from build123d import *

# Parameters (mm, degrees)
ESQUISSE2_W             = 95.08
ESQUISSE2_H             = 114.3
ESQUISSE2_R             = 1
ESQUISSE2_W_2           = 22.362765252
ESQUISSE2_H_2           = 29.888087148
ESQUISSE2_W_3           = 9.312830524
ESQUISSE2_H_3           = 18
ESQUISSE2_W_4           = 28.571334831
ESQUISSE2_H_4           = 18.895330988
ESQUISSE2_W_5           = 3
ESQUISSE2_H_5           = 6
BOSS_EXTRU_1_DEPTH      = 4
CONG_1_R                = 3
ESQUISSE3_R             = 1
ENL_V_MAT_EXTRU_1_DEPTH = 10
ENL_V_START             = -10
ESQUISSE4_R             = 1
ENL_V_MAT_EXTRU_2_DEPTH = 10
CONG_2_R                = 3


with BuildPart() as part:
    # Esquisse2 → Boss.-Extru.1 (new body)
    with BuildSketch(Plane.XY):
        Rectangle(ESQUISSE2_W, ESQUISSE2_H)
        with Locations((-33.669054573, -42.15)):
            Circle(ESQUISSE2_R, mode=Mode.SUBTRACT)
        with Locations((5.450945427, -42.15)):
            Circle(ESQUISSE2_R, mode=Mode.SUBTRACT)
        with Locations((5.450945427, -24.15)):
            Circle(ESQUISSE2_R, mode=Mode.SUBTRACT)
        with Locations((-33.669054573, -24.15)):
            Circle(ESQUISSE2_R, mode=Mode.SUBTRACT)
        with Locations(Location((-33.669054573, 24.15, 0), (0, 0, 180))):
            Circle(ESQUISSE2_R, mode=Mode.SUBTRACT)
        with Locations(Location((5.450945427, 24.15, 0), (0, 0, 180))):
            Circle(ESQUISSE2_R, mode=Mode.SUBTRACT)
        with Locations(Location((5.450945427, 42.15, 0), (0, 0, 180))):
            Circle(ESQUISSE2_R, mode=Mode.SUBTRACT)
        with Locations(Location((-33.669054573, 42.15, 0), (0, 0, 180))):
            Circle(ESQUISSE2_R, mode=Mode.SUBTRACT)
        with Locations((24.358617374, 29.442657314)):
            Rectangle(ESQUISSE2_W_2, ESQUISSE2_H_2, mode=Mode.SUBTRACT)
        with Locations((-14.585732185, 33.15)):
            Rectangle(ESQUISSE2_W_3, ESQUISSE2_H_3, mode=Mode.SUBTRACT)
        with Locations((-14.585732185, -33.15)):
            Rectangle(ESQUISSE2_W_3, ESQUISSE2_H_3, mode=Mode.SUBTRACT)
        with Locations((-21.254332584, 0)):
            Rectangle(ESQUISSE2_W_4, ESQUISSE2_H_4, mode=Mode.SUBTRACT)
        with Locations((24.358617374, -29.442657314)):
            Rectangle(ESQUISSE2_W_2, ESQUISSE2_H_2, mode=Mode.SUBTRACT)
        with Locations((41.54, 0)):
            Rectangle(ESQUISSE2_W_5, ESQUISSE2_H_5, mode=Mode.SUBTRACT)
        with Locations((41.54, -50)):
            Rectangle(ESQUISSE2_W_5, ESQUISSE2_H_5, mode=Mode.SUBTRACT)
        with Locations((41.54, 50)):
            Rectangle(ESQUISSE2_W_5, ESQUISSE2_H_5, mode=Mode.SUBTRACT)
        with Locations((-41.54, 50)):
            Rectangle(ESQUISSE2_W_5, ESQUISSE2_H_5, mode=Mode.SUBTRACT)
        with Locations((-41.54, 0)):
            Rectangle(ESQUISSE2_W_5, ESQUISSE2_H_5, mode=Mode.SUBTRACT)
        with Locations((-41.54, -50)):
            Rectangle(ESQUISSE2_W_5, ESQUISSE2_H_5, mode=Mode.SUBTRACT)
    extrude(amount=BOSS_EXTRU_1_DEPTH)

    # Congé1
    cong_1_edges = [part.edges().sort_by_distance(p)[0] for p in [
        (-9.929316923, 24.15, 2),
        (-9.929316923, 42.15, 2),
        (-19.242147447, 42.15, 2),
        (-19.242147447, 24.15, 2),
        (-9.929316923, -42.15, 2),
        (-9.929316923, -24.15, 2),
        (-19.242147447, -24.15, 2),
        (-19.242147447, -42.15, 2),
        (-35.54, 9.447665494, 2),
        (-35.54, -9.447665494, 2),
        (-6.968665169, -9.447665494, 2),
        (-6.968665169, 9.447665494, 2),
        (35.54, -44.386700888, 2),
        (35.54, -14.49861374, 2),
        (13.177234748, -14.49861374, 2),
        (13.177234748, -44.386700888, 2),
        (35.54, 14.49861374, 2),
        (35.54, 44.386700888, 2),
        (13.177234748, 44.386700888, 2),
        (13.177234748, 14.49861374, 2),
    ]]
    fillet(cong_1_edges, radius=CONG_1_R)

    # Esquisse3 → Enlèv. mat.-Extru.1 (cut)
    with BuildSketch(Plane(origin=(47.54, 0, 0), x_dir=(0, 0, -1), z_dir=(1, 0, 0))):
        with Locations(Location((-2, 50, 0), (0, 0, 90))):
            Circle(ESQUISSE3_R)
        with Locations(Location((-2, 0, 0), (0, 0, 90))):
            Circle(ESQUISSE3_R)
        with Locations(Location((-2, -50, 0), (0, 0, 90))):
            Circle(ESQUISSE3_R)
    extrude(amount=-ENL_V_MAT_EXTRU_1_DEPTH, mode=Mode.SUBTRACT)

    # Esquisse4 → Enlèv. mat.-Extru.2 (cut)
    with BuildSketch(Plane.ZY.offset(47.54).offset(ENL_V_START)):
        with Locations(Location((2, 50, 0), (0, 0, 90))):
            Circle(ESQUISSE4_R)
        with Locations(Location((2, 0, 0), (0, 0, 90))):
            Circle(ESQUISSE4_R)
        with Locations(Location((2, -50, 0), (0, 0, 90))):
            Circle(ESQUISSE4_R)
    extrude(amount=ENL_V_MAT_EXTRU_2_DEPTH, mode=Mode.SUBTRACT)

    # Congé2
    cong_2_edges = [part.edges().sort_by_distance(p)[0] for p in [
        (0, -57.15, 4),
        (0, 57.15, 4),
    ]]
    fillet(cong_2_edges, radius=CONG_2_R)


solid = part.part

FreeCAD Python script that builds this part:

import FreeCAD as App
import Part
import Sketcher
from FreeCAD import Vector
Q = App.Units.Quantity


def edges_at(feature, points):
    """Names of the edges that pass closest to the given points."""
    edges = feature.Shape.Edges
    near = lambda p: min(range(len(edges)), key=lambda i: edges[i].distToShape(Part.Vertex(*p))[0])
    return sorted({f"Edge{near(p) + 1}" for p in points})


def add_polygon(sketch, points):
    """Adds a closed chain of lines whose ends are joined by coincident constraints."""
    first, n = sketch.GeometryCount, len(points)
    for a, b in zip(points, points[1:] + points[:1]):
        sketch.addGeometry(Part.LineSegment(App.Vector(*a, 0), App.Vector(*b, 0)), False)
    for i in range(n):
        sketch.addConstraint(Sketcher.Constraint("Coincident", first + i, 2, first + (i + 1) % n, 1))

doc = App.newDocument("Part")
params = doc.addObject("Spreadsheet::Sheet", "Params")
for row, (alias, value) in enumerate([
    ("sketch1_diameter", "2 mm"),
    ("sketch1_width", "3 mm"),
    ("sketch1_height", "6 mm"),
    ("sketch1_height2", "18 mm"),
    ("sketch1_height3", "114.3 mm"),
    ("pad1_length", "4 mm"),
    ("fillet_radius", "3 mm"),
    ("sketch2_diameter", "2 mm"),
    ("pocket1_length", "10 mm"),
    ("sketch3_diameter", "2 mm"),
    ("pocket2_length", "10 mm"),
    ("fillet2_radius", "3 mm"),
], start=1):
    params.set(f"A{row}", alias)
    params.set(f"B{row}", "=" + value)
    params.setAlias(f"B{row}", alias)

body = doc.addObject("PartDesign::Body", "Body")

# Sketch on XY plane
sketch1 = body.newObject("Sketcher::SketchObject", "Sketch")
sketch1.AttachmentSupport = (doc.getObject("XY_Plane"), [""])
sketch1.MapMode = "FlatFace"
add_polygon(sketch1, [(-47.5, 57.1), (-47.5, -57.1), (47.5, -57.1), (47.5, 57.1)])  # lines 0-3
add_polygon(sketch1, [(-40, -53), (-43, -53), (-43, -47), (-40, -47)])  # lines 4-7
sketch1.addGeometry(Part.Circle(Vector(-33.7, -42.1, 0), Vector(0, 0, 1), 1), False)  # 8
add_polygon(sketch1, [(-9.9, -42.1), (-19.2, -42.1), (-19.2, -24.1), (-9.9, -24.1)])  # lines 9-12
sketch1.addGeometry(Part.Circle(Vector(-33.7, -24.1, 0), Vector(0, 0, 1), 1), False)  # 13
sketch1.addGeometry(Part.Circle(Vector(5.5, -42.1, 0), Vector(0, 0, 1), 1), False)  # 14
add_polygon(sketch1, [(43, -53), (40, -53), (40, -47), (43, -47)])  # lines 15-18
add_polygon(sketch1, [(35.5, -44.4), (13.2, -44.4), (13.2, -14.5), (35.5, -14.5)])  # lines 19-22
sketch1.addGeometry(Part.Circle(Vector(5.5, -24.1, 0), Vector(0, 0, 1), 1), False)  # 23
add_polygon(sketch1, [(-40, -3), (-43, -3), (-43, 3), (-40, 3)])  # lines 24-27
sketch1.addGeometry(Part.Circle(Vector(-33.7, 24.1, 0), Vector(0, 0, 1), 1), False)  # 28
add_polygon(sketch1, [(-7, -9.4), (-35.5, -9.4), (-35.5, 9.4), (-7, 9.4)])  # lines 29-32
sketch1.addGeometry(Part.Circle(Vector(-33.7, 42.1, 0), Vector(0, 0, 1), 1), False)  # 33
add_polygon(sketch1, [(-40, 47), (-43, 47), (-43, 53), (-40, 53)])  # lines 34-37
add_polygon(sketch1, [(-9.9, 24.1), (-19.2, 24.1), (-19.2, 42.1), (-9.9, 42.1)])  # lines 38-41
sketch1.addGeometry(Part.Circle(Vector(5.5, 24.1, 0), Vector(0, 0, 1), 1), False)  # 42
add_polygon(sketch1, [(43, -3), (40, -3), (40, 3), (43, 3)])  # lines 43-46
sketch1.addGeometry(Part.Circle(Vector(5.5, 42.1, 0), Vector(0, 0, 1), 1), False)  # 47
add_polygon(sketch1, [(35.5, 14.5), (13.2, 14.5), (13.2, 44.4), (35.5, 44.4)])  # lines 48-51
add_polygon(sketch1, [(43, 47), (40, 47), (40, 53), (43, 53)])  # lines 52-55
sketch1.addConstraint(Sketcher.Constraint("Vertical", 0))
sketch1.addConstraint(Sketcher.Constraint("Horizontal", 1))
sketch1.addConstraint(Sketcher.Constraint("Vertical", 2))
sketch1.addConstraint(Sketcher.Constraint("Horizontal", 3))
sketch1.addConstraint(Sketcher.Constraint("Horizontal", 4))
sketch1.addConstraint(Sketcher.Constraint("Vertical", 5))
sketch1.addConstraint(Sketcher.Constraint("Horizontal", 6))
sketch1.addConstraint(Sketcher.Constraint("Vertical", 7))
sketch1.addConstraint(Sketcher.Constraint("Horizontal", 9))
sketch1.addConstraint(Sketcher.Constraint("Vertical", 10))
sketch1.addConstraint(Sketcher.Constraint("Horizontal", 11))
sketch1.addConstraint(Sketcher.Constraint("Vertical", 12))
sketch1.addConstraint(Sketcher.Constraint("Horizontal", 15))
sketch1.addConstraint(Sketcher.Constraint("Vertical", 16))
sketch1.addConstraint(Sketcher.Constraint("Horizontal", 17))
sketch1.addConstraint(Sketcher.Constraint("Vertical", 18))
sketch1.addConstraint(Sketcher.Constraint("Horizontal", 19))
sketch1.addConstraint(Sketcher.Constraint("Vertical", 20))
sketch1.addConstraint(Sketcher.Constraint("Horizontal", 21))
sketch1.addConstraint(Sketcher.Constraint("Vertical", 22))
sketch1.addConstraint(Sketcher.Constraint("Horizontal", 24))
sketch1.addConstraint(Sketcher.Constraint("Vertical", 25))
sketch1.addConstraint(Sketcher.Constraint("Horizontal", 26))
sketch1.addConstraint(Sketcher.Constraint("Vertical", 27))
sketch1.addConstraint(Sketcher.Constraint("Horizontal", 29))
sketch1.addConstraint(Sketcher.Constraint("Vertical", 30))
sketch1.addConstraint(Sketcher.Constraint("Horizontal", 31))
sketch1.addConstraint(Sketcher.Constraint("Vertical", 32))
sketch1.addConstraint(Sketcher.Constraint("Horizontal", 34))
sketch1.addConstraint(Sketcher.Constraint("Vertical", 35))
sketch1.addConstraint(Sketcher.Constraint("Horizontal", 36))
sketch1.addConstraint(Sketcher.Constraint("Vertical", 37))
sketch1.addConstraint(Sketcher.Constraint("Horizontal", 38))
sketch1.addConstraint(Sketcher.Constraint("Vertical", 39))
sketch1.addConstraint(Sketcher.Constraint("Horizontal", 40))
sketch1.addConstraint(Sketcher.Constraint("Vertical", 41))
sketch1.addConstraint(Sketcher.Constraint("Horizontal", 43))
sketch1.addConstraint(Sketcher.Constraint("Vertical", 44))
sketch1.addConstraint(Sketcher.Constraint("Horizontal", 45))
sketch1.addConstraint(Sketcher.Constraint("Vertical", 46))
sketch1.addConstraint(Sketcher.Constraint("Horizontal", 48))
sketch1.addConstraint(Sketcher.Constraint("Vertical", 49))
sketch1.addConstraint(Sketcher.Constraint("Horizontal", 50))
sketch1.addConstraint(Sketcher.Constraint("Vertical", 51))
sketch1.addConstraint(Sketcher.Constraint("Horizontal", 52))
sketch1.addConstraint(Sketcher.Constraint("Vertical", 53))
sketch1.addConstraint(Sketcher.Constraint("Horizontal", 54))
sketch1.addConstraint(Sketcher.Constraint("Vertical", 55))
sketch1.addConstraint(Sketcher.Constraint("Equal", 8, 13))
sketch1.addConstraint(Sketcher.Constraint("Equal", 13, 14))
sketch1.addConstraint(Sketcher.Constraint("Equal", 14, 23))
sketch1.addConstraint(Sketcher.Constraint("Equal", 23, 28))
sketch1.addConstraint(Sketcher.Constraint("Equal", 28, 33))
sketch1.addConstraint(Sketcher.Constraint("Equal", 33, 42))
sketch1.addConstraint(Sketcher.Constraint("Equal", 42, 47))
sketch1.addConstraint(Sketcher.Constraint("Symmetric", 0, 2, 2, 2, -1, 1))
sketch1.addConstraint(Sketcher.Constraint("Symmetric", 17, 2, 34, 2, -1, 1))
sketch1.addConstraint(Sketcher.Constraint("Symmetric", 15, 2, 36, 2, -1, 1))
sketch1.addConstraint(Sketcher.Constraint("Symmetric", 26, 2, 43, 2, -1, 1))
sketch1.addConstraint(Sketcher.Constraint("Symmetric", 24, 2, 45, 2, -1, 1))
sketch1.addConstraint(Sketcher.Constraint("Symmetric", 6, 2, 52, 2, -1, 1))
sketch1.addConstraint(Sketcher.Constraint("Symmetric", 4, 2, 54, 2, -1, 1))
sketch1.addConstraint(Sketcher.Constraint("Symmetric", 7, 2, 15, 2, -2))
sketch1.addConstraint(Sketcher.Constraint("Symmetric", 5, 2, 17, 2, -2))
sketch1.addConstraint(Sketcher.Constraint("Symmetric", 13, 3, 28, 3, -1))
sketch1.addConstraint(Sketcher.Constraint("Symmetric", 8, 3, 33, 3, -1))
sketch1.addConstraint(Sketcher.Constraint("Symmetric", 23, 3, 42, 3, -1))
sketch1.addConstraint(Sketcher.Constraint("Symmetric", 14, 3, 47, 3, -1))
sketch1.addConstraint(Sketcher.Constraint("Symmetric", 10, 2, 38, 2, -1))
sketch1.addConstraint(Sketcher.Constraint("Symmetric", 12, 2, 40, 2, -1))
sketch1.addConstraint(Sketcher.Constraint("Symmetric", 20, 2, 48, 2, -1))
sketch1.addConstraint(Sketcher.Constraint("Symmetric", 22, 2, 50, 2, -1))
sketch1.addConstraint(Sketcher.Constraint("Horizontal", 8, 3, 14, 3))
sketch1.addConstraint(Sketcher.Constraint("Horizontal", 13, 3, 23, 3))
sketch1.addConstraint(Sketcher.Constraint("Horizontal", 14, 3, 9, 2))
sketch1.addConstraint(Sketcher.Constraint("Horizontal", 23, 3, 10, 2))
sketch1.addConstraint(Sketcher.Constraint("Horizontal", 27, 2, 43, 2))
sketch1.addConstraint(Sketcher.Constraint("Vertical", 8, 3, 13, 3))
sketch1.addConstraint(Sketcher.Constraint("Vertical", 14, 3, 23, 3))
sketch1.addConstraint(Sketcher.Constraint("Vertical", 5, 2, 24, 2))
sketch1.addConstraint(Sketcher.Constraint("Vertical", 7, 2, 26, 2))
sketch1.addConstraint(Sketcher.Constraint("Equal", 18, 25))
sketch1.addConstraint(Sketcher.Constraint("Diameter", 8, Q("2 mm")))
sketch1.addConstraint(Sketcher.Constraint("DistanceX", 4, 2, 4, 1, Q("3 mm")))
sketch1.addConstraint(Sketcher.Constraint("DistanceY", 5, 1, 5, 2, Q("6 mm")))
sketch1.addConstraint(Sketcher.Constraint("DistanceY", 10, 1, 10, 2, Q("18 mm")))
sketch1.addConstraint(Sketcher.Constraint("DistanceY", 0, 2, 0, 1, Q("114.3 mm")))
sketch1.addConstraint(Sketcher.Constraint("DistanceY", 4, 2, -1, 1, Q("53 mm")))
sketch1.addConstraint(Sketcher.Constraint("DistanceY", 0, 2, 8, 3, Q("15 mm")))
sketch1.addConstraint(Sketcher.Constraint("DistanceX", 22, 2, 1, 2, Q("12 mm")))
sketch1.addConstraint(Sketcher.Constraint("DistanceX", 1, 1, 1, 2, Q("95.08 mm")))
sketch1.addConstraint(Sketcher.Constraint("DistanceX", 0, 2, 4, 2, Q("4.5 mm")))
sketch1.addConstraint(Sketcher.Constraint("DistanceX", 27, 2, 29, 2, Q("4.5 mm")))
sketch1.addConstraint(Sketcher.Constraint("DistanceX", 8, 3, 14, 3, Q("39.12 mm")))
sketch1.addConstraint(Sketcher.Constraint("DistanceX", 9, 2, 9, 1, Q("9.312831 mm")))
sketch1.addConstraint(Sketcher.Constraint("DistanceY", 30, 1, 30, 2, Q("18.895331 mm")))
sketch1.addConstraint(Sketcher.Constraint("DistanceY", 19, 2, -1, 1, Q("44.386701 mm")))
sketch1.addConstraint(Sketcher.Constraint("DistanceX", 31, 2, 20, 2, Q("20.1459 mm")))
sketch1.addConstraint(Sketcher.Constraint("DistanceX", 19, 2, 19, 1, Q("22.362765 mm")))
sketch1.addConstraint(Sketcher.Constraint("DistanceY", 20, 1, 20, 2, Q("29.888087 mm")))
sketch1.addConstraint(Sketcher.Constraint("DistanceX", 14, 3, 19, 2, Q("7.726289 mm")))
sketch1.addConstraint(Sketcher.Constraint("DistanceX", 12, 2, 19, 2, Q("23.106552 mm")))
sketch1.addConstraint(Sketcher.Constraint("DistanceY", 20, 2, 31, 2, Q("23.946279 mm")))
sketch1.setExpression("Constraints[130]", "Params.sketch1_diameter")
sketch1.setExpression("Constraints[131]", "Params.sketch1_width")
sketch1.setExpression("Constraints[132]", "Params.sketch1_height")
sketch1.setExpression("Constraints[133]", "Params.sketch1_height2")
sketch1.setExpression("Constraints[134]", "Params.sketch1_height3")
pad1 = body.newObject("PartDesign::Pad", "Pad")
pad1.Profile = sketch1
pad1.setExpression("Length", "Params.pad1_length")
doc.recompute()

fillet = body.newObject("PartDesign::Fillet", "Fillet")
fillet.Base = (pad1, edges_at(pad1, [
    (-9.929, 24.15, 2),
    (-9.929, 42.15, 2),
    (-19.242, 42.15, 2),
    (-19.242, 24.15, 2),
    (-9.929, -42.15, 2),
    (-9.929, -24.15, 2),
    (-19.242, -24.15, 2),
    (-19.242, -42.15, 2),
    (-35.54, 9.448, 2),
    (-35.54, -9.448, 2),
    (-6.969, -9.448, 2),
    (-6.969, 9.448, 2),
    (35.54, -44.387, 2),
    (35.54, -14.499, 2),
    (13.177, -14.499, 2),
    (13.177, -44.387, 2),
    (35.54, 14.499, 2),
    (35.54, 44.387, 2),
    (13.177, 44.387, 2),
    (13.177, 14.499, 2),
]))
fillet.setExpression("Radius", "Params.fillet_radius")

# Sketch on YZ plane
sketch2 = body.newObject("Sketcher::SketchObject", "Sketch001")
sketch2.AttachmentSupport = (doc.getObject("YZ_Plane"), [""])
sketch2.MapMode = "FlatFace"
sketch2.AttachmentOffset = App.Placement(Vector(0, 0, 47.54), App.Rotation())
sketch2.addGeometry(Part.Circle(Vector(50, 2, 0), Vector(0, 0, 1), 1), False)
sketch2.addGeometry(Part.Circle(Vector(0, 2, 0), Vector(0, 0, 1), 1), False)
sketch2.addGeometry(Part.Circle(Vector(-50, 2, 0), Vector(0, 0, 1), 1), False)
sketch2.addConstraint(Sketcher.Constraint("Equal", 0, 1))
sketch2.addConstraint(Sketcher.Constraint("Equal", 1, 2))
sketch2.addConstraint(Sketcher.Constraint("Symmetric", 0, 3, 2, 3, -2))
sketch2.addConstraint(Sketcher.Constraint("PointOnObject", 1, 3, -2))
sketch2.addConstraint(Sketcher.Constraint("Horizontal", 0, 3, 1, 3))
sketch2.addConstraint(Sketcher.Constraint("Diameter", 0, Q("2 mm")))
sketch2.addConstraint(Sketcher.Constraint("DistanceX", -1, 1, 0, 3, Q("50 mm")))
sketch2.addConstraint(Sketcher.Constraint("DistanceY", -1, 1, 0, 3, Q("2 mm")))
sketch2.setExpression("Constraints[5]", "Params.sketch2_diameter")
pocket1 = body.newObject("PartDesign::Pocket", "Pocket")
pocket1.Profile = sketch2
pocket1.setExpression("Length", "Params.pocket1_length")

# Sketch on YZ plane
sketch3 = body.newObject("Sketcher::SketchObject", "Sketch002")
sketch3.AttachmentSupport = (doc.getObject("YZ_Plane"), [""])
sketch3.MapMode = "FlatFace"
sketch3.AttachmentOffset = App.Placement(Vector(0, 0, -37.54), App.Rotation())
sketch3.addGeometry(Part.Circle(Vector(50, 2, 0), Vector(0, 0, 1), 1), False)
sketch3.addGeometry(Part.Circle(Vector(0, 2, 0), Vector(0, 0, 1), 1), False)
sketch3.addGeometry(Part.Circle(Vector(-50, 2, 0), Vector(0, 0, 1), 1), False)
sketch3.addConstraint(Sketcher.Constraint("Equal", 0, 1))
sketch3.addConstraint(Sketcher.Constraint("Equal", 1, 2))
sketch3.addConstraint(Sketcher.Constraint("Symmetric", 0, 3, 2, 3, -2))
sketch3.addConstraint(Sketcher.Constraint("PointOnObject", 1, 3, -2))
sketch3.addConstraint(Sketcher.Constraint("Horizontal", 0, 3, 1, 3))
sketch3.addConstraint(Sketcher.Constraint("Diameter", 0, Q("2 mm")))
sketch3.addConstraint(Sketcher.Constraint("DistanceX", -1, 1, 0, 3, Q("50 mm")))
sketch3.addConstraint(Sketcher.Constraint("DistanceY", -1, 1, 0, 3, Q("2 mm")))
sketch3.setExpression("Constraints[5]", "Params.sketch3_diameter")
pocket2 = body.newObject("PartDesign::Pocket", "Pocket001")
pocket2.Profile = sketch3
pocket2.setExpression("Length", "Params.pocket2_length")
doc.recompute()

fillet2 = body.newObject("PartDesign::Fillet", "Fillet001")
fillet2.Base = (pocket2, edges_at(pocket2, [(0, -57.15, 4), (0, 57.15, 4)]))
fillet2.setExpression("Radius", "Params.fillet2_radius")

doc.recompute()
